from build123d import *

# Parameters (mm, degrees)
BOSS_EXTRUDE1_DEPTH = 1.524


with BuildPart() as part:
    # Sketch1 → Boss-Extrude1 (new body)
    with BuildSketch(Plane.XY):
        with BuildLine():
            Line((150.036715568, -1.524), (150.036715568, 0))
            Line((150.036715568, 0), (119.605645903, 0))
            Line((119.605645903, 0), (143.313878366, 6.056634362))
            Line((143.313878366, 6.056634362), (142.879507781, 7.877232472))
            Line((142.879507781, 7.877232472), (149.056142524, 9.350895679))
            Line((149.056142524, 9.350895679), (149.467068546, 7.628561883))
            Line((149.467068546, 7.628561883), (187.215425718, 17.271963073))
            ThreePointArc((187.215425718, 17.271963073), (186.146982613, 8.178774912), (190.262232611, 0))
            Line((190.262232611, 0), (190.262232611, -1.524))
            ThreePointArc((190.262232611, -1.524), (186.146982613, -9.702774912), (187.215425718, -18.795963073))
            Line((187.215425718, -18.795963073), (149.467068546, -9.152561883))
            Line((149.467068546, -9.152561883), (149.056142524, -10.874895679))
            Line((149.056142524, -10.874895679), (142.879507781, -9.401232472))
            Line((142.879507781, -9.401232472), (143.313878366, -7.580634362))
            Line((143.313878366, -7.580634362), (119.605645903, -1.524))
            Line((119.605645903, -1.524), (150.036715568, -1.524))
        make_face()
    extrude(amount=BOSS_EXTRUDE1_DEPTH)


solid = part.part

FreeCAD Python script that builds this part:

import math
import FreeCAD as App
import Part
import Sketcher

V = App.Vector
Q = App.Units.Quantity

doc = App.newDocument("Part")
body = doc.addObject("PartDesign::Body", "Body")

sketch1 = doc.addObject("Sketcher::SketchObject", "Sketch")
body.addObject(sketch1)
sketch1.AttachmentSupport = (doc.XY_Plane, [""])
sketch1.MapMode = "FlatFace"
sketch1.addGeometry([
    Part.LineSegment(V(150, 0, 0), V(150, -1.5, 0)),
    Part.LineSegment(V(150, -1.5, 0), V(119.6, -1.5, 0)),
    Part.LineSegment(V(119.6, -1.5, 0), V(143.3, -7.6, 0)),
    Part.LineSegment(V(143.3, -7.6, 0), V(142.9, -9.4, 0)),
    Part.LineSegment(V(142.9, -9.4, 0), V(149.1, -10.9, 0)),
    Part.LineSegment(V(149.1, -10.9, 0), V(149.5, -9.2, 0)),
    Part.LineSegment(V(149.5, -9.2, 0), V(187.2, -18.8, 0)),
    Part.ArcOfCircle(Part.Circle(V(201.8, -12.5, 0), V(0, 0, 1), 15.9), math.radians(137), math.radians(203)),
    Part.LineSegment(V(190.3, -1.5, 0), V(190.3, 0, 0)),
    Part.ArcOfCircle(Part.Circle(V(201.8, 10.9, 0), V(0, 0, 1), 15.9), math.radians(157), math.radians(223)),
    Part.LineSegment(V(187.2, 17.3, 0), V(149.5, 7.6, 0)),
    Part.LineSegment(V(149.5, 7.6, 0), V(149.1, 9.4, 0)),
    Part.LineSegment(V(149.1, 9.4, 0), V(142.9, 7.9, 0)),
    Part.LineSegment(V(142.9, 7.9, 0), V(143.3, 6.1, 0)),
    Part.LineSegment(V(143.3, 6.1, 0), V(119.6, 0, 0)),
    Part.LineSegment(V(119.6, 0, 0), V(150, 0, 0)),
], False)
sketch1.addConstraint([
    Sketcher.Constraint("Coincident", 0, 2, 1, 1),
    Sketcher.Constraint("Coincident", 1, 2, 2, 1),
    Sketcher.Constraint("Coincident", 2, 2, 3, 1),
    Sketcher.Constraint("Coincident", 3, 2, 4, 1),
    Sketcher.Constraint("Coincident", 4, 2, 5, 1),
    Sketcher.Constraint("Coincident", 5, 2, 6, 1),
    Sketcher.Constraint("Coincident", 6, 2, 7, 2),
    Sketcher.Constraint("Coincident", 7, 1, 8, 1),
    Sketcher.Constraint("Coincident", 8, 2, 9, 2),
    Sketcher.Constraint("Coincident", 9, 1, 10, 1),
    Sketcher.Constraint("Coincident", 10, 2, 11, 1),
    Sketcher.Constraint("Coincident", 11, 2, 12, 1),
    Sketcher.Constraint("Coincident", 12, 2, 13, 1),
    Sketcher.Constraint("Coincident", 13, 2, 14, 1),
    Sketcher.Constraint("Coincident", 14, 2, 15, 1),
    Sketcher.Constraint("Coincident", 15, 2, 0, 1),
    Sketcher.Constraint("Vertical", 0),
    Sketcher.Constraint("Horizontal", 1),
    Sketcher.Constraint("Vertical", 8),
    Sketcher.Constraint("Horizontal", 15),
    Sketcher.Constraint("Equal", 7, 9),
    Sketcher.Constraint("PointOnObject", 8, 2, -1),
    Sketcher.Constraint("PointOnObject", 14, 2, -1),
    Sketcher.Constraint("Perpendicular", 3, 4),
    Sketcher.Constraint("Perpendicular", 4, 5),
    Sketcher.Constraint("Parallel", 2, 6),
    Sketcher.Constraint("Perpendicular", 11, 12),
    Sketcher.Constraint("Perpendicular", 12, 13),
    Sketcher.Constraint("Parallel", 10, 14),
    Sketcher.Constraint("Horizontal", 1, 2, 7, 1),
    Sketcher.Constraint("Vertical", 7, 3, 9, 3),
    Sketcher.Constraint("Vertical", 6, 2, 9, 1),
    Sketcher.Constraint("Vertical", 5, 2, 10, 2),
    Sketcher.Constraint("Vertical", 4, 2, 11, 2),
    Sketcher.Constraint("Vertical", 3, 2, 12, 2),
    Sketcher.Constraint("Vertical", 2, 2, 13, 2),
    Sketcher.Constraint("Vertical", 1, 2, 14, 2),
    Sketcher.Constraint("Equal", 6, 10),
    Sketcher.Constraint("DistanceY", 0, 2, 0, 1, Q("0.06 in")),
    Sketcher.Constraint("Distance", 4, Q("0.25 in")),
    Sketcher.Constraint("Radius", 7, Q("15.925529 mm")),
    Sketcher.Constraint("DistanceX", 3, 2, 7, 3, Q("2.3208999 in")),
    Sketcher.Constraint("Distance", 3, Q("1.871699 mm")),
    Sketcher.Constraint("DistanceX", 1, 2, 1, 1, Q("30.43107 mm")),
    Sketcher.Constraint("DistanceY", 3, 2, 2, 2, Q("1.820598 mm")),
    Sketcher.Constraint("DistanceY", 6, 2, 5, 2, Q("9.643401 mm")),
    Sketcher.Constraint("Distance", 6, Q("38.960668 mm")),
    Sketcher.Constraint("DistanceX", -1, 1, 2, 2, Q("143.313878 mm")),
    Sketcher.Constraint("DistanceX", -1, 1, 5, 2, Q("149.467069 mm")),
    Sketcher.Constraint("DistanceY", 5, 2, -1, 1, Q("9.152562 mm")),
])
pad1 = doc.addObject("PartDesign::Pad", "Pad")
body.addObject(pad1)
pad1.Profile = sketch1
pad1.Length = Q("0.06 in")

doc.recompute()
